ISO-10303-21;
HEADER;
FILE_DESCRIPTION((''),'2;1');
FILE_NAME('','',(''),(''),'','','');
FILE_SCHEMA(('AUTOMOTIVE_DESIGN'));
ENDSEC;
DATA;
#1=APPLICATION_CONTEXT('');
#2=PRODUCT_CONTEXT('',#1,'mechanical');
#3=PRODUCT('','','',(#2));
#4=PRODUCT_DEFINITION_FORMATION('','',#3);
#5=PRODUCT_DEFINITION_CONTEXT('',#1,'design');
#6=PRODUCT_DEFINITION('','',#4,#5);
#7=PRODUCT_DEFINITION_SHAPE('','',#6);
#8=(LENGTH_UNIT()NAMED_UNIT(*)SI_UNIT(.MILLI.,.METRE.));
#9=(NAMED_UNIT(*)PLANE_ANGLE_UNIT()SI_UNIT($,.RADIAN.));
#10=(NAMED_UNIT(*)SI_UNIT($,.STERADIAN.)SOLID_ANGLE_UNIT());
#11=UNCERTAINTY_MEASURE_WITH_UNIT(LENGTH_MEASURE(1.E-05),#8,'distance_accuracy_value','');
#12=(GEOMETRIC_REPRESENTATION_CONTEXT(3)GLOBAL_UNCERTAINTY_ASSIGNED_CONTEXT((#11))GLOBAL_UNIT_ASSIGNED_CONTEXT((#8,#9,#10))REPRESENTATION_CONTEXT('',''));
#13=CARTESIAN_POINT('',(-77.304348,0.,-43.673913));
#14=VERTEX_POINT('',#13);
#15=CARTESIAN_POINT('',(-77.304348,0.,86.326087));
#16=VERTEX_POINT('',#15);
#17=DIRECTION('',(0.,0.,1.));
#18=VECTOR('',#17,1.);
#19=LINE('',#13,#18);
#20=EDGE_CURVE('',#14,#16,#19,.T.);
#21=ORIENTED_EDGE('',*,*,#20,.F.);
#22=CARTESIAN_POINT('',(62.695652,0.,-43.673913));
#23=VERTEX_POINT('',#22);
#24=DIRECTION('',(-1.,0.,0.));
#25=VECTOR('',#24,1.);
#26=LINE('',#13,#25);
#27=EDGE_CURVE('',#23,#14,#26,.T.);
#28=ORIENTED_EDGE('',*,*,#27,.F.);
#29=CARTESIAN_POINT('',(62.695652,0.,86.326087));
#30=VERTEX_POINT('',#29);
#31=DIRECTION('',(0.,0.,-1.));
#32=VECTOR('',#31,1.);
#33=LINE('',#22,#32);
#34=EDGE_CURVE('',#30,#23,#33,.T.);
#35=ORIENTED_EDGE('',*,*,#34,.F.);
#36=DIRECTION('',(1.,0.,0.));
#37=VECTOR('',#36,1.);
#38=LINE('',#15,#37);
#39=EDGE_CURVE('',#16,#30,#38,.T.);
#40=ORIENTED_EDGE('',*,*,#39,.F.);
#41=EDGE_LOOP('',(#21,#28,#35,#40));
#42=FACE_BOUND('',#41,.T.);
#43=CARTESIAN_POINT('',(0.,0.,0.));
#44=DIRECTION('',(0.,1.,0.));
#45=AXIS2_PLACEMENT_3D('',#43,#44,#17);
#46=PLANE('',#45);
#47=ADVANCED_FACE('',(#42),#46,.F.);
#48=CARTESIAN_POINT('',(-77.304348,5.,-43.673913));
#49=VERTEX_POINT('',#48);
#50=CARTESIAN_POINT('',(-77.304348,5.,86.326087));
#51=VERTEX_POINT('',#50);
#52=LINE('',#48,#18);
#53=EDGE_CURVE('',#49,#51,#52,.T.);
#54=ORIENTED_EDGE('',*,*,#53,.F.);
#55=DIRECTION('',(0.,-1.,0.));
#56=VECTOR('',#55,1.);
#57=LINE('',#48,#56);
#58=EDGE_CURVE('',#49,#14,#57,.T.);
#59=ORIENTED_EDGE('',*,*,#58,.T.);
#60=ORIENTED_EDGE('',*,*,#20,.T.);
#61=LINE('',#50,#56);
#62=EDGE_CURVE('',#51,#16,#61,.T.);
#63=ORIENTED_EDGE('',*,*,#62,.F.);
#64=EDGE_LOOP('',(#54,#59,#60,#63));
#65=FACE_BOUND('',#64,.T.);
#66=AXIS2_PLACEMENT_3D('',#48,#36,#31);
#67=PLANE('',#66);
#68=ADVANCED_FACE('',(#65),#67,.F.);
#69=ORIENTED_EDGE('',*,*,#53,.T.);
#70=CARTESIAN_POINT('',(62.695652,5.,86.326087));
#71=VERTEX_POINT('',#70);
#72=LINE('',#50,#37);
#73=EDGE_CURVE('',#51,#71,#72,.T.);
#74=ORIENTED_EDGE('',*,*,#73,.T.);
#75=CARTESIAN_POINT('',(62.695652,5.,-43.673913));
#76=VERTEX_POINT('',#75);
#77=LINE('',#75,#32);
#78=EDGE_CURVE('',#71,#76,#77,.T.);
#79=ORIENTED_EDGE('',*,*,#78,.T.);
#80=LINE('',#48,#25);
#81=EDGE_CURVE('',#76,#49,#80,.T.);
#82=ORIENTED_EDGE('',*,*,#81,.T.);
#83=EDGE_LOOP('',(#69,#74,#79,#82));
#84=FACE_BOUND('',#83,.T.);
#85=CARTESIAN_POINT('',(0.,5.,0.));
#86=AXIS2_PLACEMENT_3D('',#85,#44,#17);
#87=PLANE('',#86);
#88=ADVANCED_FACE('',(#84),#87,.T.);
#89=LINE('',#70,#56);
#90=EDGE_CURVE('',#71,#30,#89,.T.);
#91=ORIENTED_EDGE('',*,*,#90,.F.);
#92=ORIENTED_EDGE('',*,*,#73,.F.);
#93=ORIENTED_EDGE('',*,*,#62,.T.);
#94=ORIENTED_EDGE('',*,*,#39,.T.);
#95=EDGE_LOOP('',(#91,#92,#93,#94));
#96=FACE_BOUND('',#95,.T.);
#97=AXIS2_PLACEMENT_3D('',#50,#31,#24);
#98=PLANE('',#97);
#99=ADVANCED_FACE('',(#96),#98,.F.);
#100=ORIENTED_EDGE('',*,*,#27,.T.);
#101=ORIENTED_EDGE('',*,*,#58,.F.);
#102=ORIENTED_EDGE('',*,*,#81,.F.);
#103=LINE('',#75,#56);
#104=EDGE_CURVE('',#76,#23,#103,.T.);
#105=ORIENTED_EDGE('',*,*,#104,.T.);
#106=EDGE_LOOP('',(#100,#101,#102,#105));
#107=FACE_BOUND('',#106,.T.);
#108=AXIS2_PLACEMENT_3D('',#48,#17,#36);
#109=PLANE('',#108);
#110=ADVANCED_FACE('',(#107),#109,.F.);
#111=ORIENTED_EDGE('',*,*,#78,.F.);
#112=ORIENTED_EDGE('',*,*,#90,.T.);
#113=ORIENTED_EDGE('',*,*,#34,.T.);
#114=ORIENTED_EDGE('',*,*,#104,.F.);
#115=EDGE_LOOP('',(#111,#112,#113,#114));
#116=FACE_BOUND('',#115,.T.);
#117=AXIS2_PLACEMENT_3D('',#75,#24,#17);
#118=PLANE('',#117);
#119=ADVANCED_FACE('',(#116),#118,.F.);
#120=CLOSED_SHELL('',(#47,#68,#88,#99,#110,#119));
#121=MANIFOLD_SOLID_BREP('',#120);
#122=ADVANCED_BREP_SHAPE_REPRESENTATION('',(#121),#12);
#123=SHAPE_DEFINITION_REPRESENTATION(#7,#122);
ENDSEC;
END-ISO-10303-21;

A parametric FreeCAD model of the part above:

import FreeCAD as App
import Part
import Sketcher
from FreeCAD import Vector
Q = App.Units.Quantity


def add_polygon(sketch, points):
    """Adds a closed chain of lines whose ends are joined by coincident constraints."""
    first, n = sketch.GeometryCount, len(points)
    for a, b in zip(points, points[1:] + points[:1]):
        sketch.addGeometry(Part.LineSegment(App.Vector(*a, 0), App.Vector(*b, 0)), False)
    for i in range(n):
        sketch.addConstraint(Sketcher.Constraint("Coincident", first + i, 2, first + (i + 1) % n, 1))

doc = App.newDocument("Part")
body = doc.addObject("PartDesign::Body", "Body")

sketch1 = body.newObject("Sketcher::SketchObject", "Sketch")
sketch1.AttachmentSupport = (doc.getObject("XZ_Plane"), [""])
sketch1.MapMode = "FlatFace"
add_polygon(sketch1, [(-77, -44), (-77, 86), (63, 86), (63, -44)])
sketch1.addConstraint([
    Sketcher.Constraint("Vertical", 0),
    Sketcher.Constraint("Horizontal", 1),
    Sketcher.Constraint("Vertical", 2),
    Sketcher.Constraint("Horizontal", 3),
    Sketcher.Constraint("DistanceX", 1, 1, 1, 2, Q("140 mm")),
    Sketcher.Constraint("DistanceY", 0, 1, 0, 2, Q("130 mm")),
    Sketcher.Constraint("DistanceX", 0, 2, -1, 1, Q("77.304348 mm")),
    Sketcher.Constraint("DistanceY", -1, 1, 0, 2, Q("86.326087 mm")),
])
pad1 = body.newObject("PartDesign::Pad", "Pad")
pad1.Profile = sketch1
pad1.Length = 5
pad1.Reversed = True

doc.recompute()
